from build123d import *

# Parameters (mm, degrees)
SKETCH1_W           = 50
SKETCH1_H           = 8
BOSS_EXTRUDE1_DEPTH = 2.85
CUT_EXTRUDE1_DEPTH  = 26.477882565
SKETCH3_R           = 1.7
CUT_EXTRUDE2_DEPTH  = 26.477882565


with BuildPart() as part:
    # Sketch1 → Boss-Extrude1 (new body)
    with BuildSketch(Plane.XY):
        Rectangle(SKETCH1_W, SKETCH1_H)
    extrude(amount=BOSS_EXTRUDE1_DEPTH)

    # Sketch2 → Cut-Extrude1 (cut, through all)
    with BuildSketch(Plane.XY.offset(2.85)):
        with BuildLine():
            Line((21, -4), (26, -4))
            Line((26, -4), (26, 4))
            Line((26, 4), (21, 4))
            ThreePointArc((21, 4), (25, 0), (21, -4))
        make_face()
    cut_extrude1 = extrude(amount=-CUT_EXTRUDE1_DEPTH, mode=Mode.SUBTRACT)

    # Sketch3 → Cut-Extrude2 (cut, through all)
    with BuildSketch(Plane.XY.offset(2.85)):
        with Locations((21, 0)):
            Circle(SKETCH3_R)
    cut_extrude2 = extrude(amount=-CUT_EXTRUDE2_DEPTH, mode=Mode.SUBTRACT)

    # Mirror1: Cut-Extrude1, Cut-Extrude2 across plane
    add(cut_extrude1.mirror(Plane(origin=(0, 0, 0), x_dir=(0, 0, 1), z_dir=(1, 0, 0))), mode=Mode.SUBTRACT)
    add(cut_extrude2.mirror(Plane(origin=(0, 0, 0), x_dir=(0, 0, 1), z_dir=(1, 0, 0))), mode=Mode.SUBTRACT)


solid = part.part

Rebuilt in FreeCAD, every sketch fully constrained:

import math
import FreeCAD as App
import Part
import Sketcher

V = App.Vector


def add_polygon(sketch, points):
    """Adds a closed chain of lines whose ends are joined by coincident constraints."""
    first, n = sketch.GeometryCount, len(points)
    for a, b in zip(points, points[1:] + points[:1]):
        sketch.addGeometry(Part.LineSegment(App.Vector(*a, 0), App.Vector(*b, 0)), False)
    for i in range(n):
        sketch.addConstraint(Sketcher.Constraint("Coincident", first + i, 2, first + (i + 1) % n, 1))

doc = App.newDocument("Part")
body = doc.addObject("PartDesign::Body", "Body")

# Sketch on XY plane
sketch1 = doc.addObject("Sketcher::SketchObject", "Sketch")
body.addObject(sketch1)
sketch1.AttachmentSupport = (doc.XY_Plane, [""])
sketch1.MapMode = "FlatFace"
add_polygon(sketch1, [(-25, 4), (-25, -4), (25, -4), (25, 4)])  # lines 0-3
sketch1.addConstraint(Sketcher.Constraint("Vertical", 0))
sketch1.addConstraint(Sketcher.Constraint("Horizontal", 1))
sketch1.addConstraint(Sketcher.Constraint("Vertical", 2))
sketch1.addConstraint(Sketcher.Constraint("Horizontal", 3))
sketch1.addConstraint(Sketcher.Constraint("Symmetric", 0, 2, 2, 2, -1, 1))
sketch1.addConstraint(Sketcher.Constraint("DistanceX", 1, 1, 1, 2, 50.0))
sketch1.addConstraint(Sketcher.Constraint("DistanceY", 0, 2, 0, 1, 8.0))
pad1 = doc.addObject("PartDesign::Pad", "Pad")
body.addObject(pad1)
pad1.Profile = sketch1
pad1.Length = 2.85

# Sketch on XY plane
sketch2 = doc.addObject("Sketcher::SketchObject", "Sketch001")
body.addObject(sketch2)
sketch2.AttachmentSupport = (doc.XY_Plane, [""])
sketch2.MapMode = "FlatFace"
sketch2.AttachmentOffset = App.Placement(V(0, 0, 2.85), App.Rotation())
sketch2.addGeometry(Part.LineSegment(V(21, -4, 0), V(26, -4, 0)), False)
sketch2.addGeometry(Part.LineSegment(V(26, -4, 0), V(26, 4, 0)), False)
sketch2.addGeometry(Part.LineSegment(V(26, 4, 0), V(21, 4, 0)), False)
sketch2.addGeometry(Part.ArcOfCircle(Part.Circle(V(21, 0, 0), V(0, 0, 1), 4), math.radians(-90), math.radians(90)), False)
sketch2.addConstraint(Sketcher.Constraint("Coincident", 0, 2, 1, 1))
sketch2.addConstraint(Sketcher.Constraint("Coincident", 1, 2, 2, 1))
sketch2.addConstraint(Sketcher.Constraint("Tangent", 2, 2, 3, 2))
sketch2.addConstraint(Sketcher.Constraint("Tangent", 3, 1, 0, 1))
sketch2.addConstraint(Sketcher.Constraint("Horizontal", 0))
sketch2.addConstraint(Sketcher.Constraint("Vertical", 1))
sketch2.addConstraint(Sketcher.Constraint("Horizontal", 2))
sketch2.addConstraint(Sketcher.Constraint("PointOnObject", 3, 3, -1))
sketch2.addConstraint(Sketcher.Constraint("Radius", 3, 4.0))
sketch2.addConstraint(Sketcher.Constraint("DistanceX", 0, 1, 0, 2, 5.0))
sketch2.addConstraint(Sketcher.Constraint("DistanceX", -1, 1, 3, 3, 21.0))
pocket1 = doc.addObject("PartDesign::Pocket", "Pocket")
body.addObject(pocket1)
pocket1.Profile = sketch2
pocket1.Type = "ThroughAll"

# Sketch on XY plane
sketch3 = doc.addObject("Sketcher::SketchObject", "Sketch002")
body.addObject(sketch3)
sketch3.AttachmentSupport = (doc.XY_Plane, [""])
sketch3.MapMode = "FlatFace"
sketch3.AttachmentOffset = App.Placement(V(0, 0, 2.85), App.Rotation())
sketch3.addGeometry(Part.Circle(V(21, 0, 0), V(0, 0, 1), 1.7), False)
sketch3.addConstraint(Sketcher.Constraint("PointOnObject", 0, 3, -1))
sketch3.addConstraint(Sketcher.Constraint("Diameter", 0, 3.4))
sketch3.addConstraint(Sketcher.Constraint("DistanceX", -1, 1, 0, 3, 21.0))
pocket2 = doc.addObject("PartDesign::Pocket", "Pocket001")
body.addObject(pocket2)
pocket2.Profile = sketch3
pocket2.Type = "ThroughAll"
doc.recompute()

mirrored = doc.addObject("PartDesign::Mirrored", "Mirrored")
body.addObject(mirrored)
mirrored.Originals = [pocket1, pocket2]
mirrored.MirrorPlane = (doc.YZ_Plane, [""])
body.Tip = mirrored

doc.recompute()
